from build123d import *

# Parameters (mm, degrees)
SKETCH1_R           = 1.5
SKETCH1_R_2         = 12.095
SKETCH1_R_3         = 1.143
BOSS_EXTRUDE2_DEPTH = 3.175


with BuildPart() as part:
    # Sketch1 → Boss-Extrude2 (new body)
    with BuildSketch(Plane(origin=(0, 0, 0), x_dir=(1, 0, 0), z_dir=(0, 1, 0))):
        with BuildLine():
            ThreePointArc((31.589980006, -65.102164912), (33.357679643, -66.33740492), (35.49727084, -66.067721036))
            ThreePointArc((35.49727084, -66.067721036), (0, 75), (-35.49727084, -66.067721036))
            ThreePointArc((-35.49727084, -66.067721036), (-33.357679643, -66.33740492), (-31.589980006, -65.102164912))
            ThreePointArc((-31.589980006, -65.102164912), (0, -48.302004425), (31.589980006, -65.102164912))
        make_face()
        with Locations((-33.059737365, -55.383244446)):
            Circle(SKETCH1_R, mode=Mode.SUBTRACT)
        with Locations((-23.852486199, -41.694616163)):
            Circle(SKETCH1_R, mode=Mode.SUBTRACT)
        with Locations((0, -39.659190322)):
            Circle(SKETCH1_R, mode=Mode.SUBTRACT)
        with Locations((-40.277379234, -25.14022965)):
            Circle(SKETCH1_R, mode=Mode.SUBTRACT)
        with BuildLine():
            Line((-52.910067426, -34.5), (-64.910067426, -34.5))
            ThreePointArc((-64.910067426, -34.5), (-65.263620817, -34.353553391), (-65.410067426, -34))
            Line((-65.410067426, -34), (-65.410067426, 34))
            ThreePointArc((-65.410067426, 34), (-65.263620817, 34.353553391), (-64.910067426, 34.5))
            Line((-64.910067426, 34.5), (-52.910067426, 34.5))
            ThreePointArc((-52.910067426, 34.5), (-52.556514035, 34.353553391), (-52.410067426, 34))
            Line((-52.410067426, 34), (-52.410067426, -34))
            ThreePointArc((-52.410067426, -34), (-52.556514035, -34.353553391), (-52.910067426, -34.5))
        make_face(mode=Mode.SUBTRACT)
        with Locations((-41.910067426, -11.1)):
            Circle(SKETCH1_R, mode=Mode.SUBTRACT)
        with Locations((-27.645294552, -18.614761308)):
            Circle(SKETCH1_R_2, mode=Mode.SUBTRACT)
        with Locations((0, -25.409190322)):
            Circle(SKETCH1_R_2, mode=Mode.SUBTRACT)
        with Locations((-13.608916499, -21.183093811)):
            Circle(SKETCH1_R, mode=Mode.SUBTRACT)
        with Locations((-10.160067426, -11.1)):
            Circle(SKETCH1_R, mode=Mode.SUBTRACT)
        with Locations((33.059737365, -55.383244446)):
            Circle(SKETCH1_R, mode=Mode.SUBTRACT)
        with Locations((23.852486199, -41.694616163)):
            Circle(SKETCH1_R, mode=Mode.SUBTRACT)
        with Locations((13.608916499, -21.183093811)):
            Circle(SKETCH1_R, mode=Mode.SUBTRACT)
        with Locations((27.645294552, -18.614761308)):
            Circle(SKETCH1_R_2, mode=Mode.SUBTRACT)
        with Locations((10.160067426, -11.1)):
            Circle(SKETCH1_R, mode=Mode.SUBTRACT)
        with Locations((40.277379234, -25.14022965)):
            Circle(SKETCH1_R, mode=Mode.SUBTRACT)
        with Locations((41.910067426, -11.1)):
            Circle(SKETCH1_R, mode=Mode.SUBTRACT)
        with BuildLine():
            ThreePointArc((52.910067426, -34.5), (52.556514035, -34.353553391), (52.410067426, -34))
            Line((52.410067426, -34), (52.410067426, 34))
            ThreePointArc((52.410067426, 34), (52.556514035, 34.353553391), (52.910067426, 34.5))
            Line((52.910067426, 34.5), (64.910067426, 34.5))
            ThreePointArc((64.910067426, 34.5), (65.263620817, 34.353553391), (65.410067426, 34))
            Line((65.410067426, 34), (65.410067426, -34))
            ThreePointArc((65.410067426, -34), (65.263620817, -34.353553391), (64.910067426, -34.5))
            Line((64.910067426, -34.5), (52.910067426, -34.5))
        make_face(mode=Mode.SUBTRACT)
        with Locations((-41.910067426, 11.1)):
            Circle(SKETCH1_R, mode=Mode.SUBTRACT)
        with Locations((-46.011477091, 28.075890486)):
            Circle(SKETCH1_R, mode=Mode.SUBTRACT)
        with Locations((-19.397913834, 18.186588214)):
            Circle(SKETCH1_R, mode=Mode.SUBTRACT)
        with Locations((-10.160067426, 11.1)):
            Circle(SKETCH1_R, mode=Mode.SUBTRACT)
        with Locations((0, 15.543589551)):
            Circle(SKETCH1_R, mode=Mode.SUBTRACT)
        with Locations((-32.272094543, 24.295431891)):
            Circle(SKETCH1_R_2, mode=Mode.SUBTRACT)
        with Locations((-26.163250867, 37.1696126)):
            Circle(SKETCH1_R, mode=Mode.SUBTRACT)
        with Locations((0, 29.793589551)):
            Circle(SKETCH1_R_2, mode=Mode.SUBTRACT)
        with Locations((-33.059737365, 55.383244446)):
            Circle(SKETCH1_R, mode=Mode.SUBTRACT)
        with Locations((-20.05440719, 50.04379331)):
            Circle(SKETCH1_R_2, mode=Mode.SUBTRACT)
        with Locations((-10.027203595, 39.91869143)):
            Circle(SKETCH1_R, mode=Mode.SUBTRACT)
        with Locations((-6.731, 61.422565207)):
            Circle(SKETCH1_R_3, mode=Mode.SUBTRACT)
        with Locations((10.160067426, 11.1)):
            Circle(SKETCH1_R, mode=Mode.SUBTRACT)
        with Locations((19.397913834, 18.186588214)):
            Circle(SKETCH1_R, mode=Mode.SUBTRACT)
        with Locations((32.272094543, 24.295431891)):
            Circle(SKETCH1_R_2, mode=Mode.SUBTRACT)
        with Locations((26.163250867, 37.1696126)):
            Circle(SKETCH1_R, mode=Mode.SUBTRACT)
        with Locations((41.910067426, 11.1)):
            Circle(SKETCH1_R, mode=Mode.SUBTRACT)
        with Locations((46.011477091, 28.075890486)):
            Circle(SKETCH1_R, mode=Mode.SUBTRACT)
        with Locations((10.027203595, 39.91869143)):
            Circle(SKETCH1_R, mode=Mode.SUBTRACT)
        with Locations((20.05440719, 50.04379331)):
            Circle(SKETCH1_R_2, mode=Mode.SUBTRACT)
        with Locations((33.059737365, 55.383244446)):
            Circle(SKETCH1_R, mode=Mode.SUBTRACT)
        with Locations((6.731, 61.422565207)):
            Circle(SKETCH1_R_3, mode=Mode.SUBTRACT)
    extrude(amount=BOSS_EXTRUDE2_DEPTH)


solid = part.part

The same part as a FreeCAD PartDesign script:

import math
import FreeCAD as App
import Part
import Sketcher
from FreeCAD import Vector
Q = App.Units.Quantity

doc = App.newDocument("Part")
body = doc.addObject("PartDesign::Body", "Body")

# Sketch on XZ plane
sketch1 = doc.addObject("Sketcher::SketchObject", "Sketch")
body.addObject(sketch1)
sketch1.AttachmentSupport = (doc.XZ_Plane, [""])
sketch1.MapMode = "FlatFace"
sketch1.addGeometry([
    Part.ArcOfCircle(Part.Circle(Vector(34.07738, 63.425012, 0), Vector(0, 0, 1), 3), math.radians(61.751478), math.radians(146.009813)),  # 0
    Part.ArcOfCircle(Part.Circle(Vector(0, 0, 0), Vector(0, 0, 1), 75), math.radians(118.248522), math.radians(421.751478)),  # 1
    Part.ArcOfCircle(Part.Circle(Vector(-34.07738, 63.425012, 0), Vector(0, 0, 1), 3), math.radians(33.990187), math.radians(118.248522)),  # 2
    Part.ArcOfCircle(Part.Circle(Vector(0, 86.402004, 0), Vector(0, 0, 1), 38.1), math.radians(-146.009813), math.radians(-33.990187)),  # 3
    Part.Circle(Vector(-33.059737, 55.383244, 0), Vector(0, 0, 1), 1.5),  # 4
    Part.Circle(Vector(-23.852486, 41.694616, 0), Vector(0, 0, 1), 1.5),  # 5
    Part.Circle(Vector(-40.277379, 25.14023, 0), Vector(0, 0, 1), 1.5),  # 6
    Part.ArcOfCircle(Part.Circle(Vector(-52.910067, 34, 0), Vector(0, 0, 1), 0.5), math.radians(0), math.radians(90)),  # 7
    Part.LineSegment(Vector(-52.910067, 34.5, 0), Vector(-64.910067, 34.5, 0)),  # 8
    Part.ArcOfCircle(Part.Circle(Vector(-64.910067, 34, 0), Vector(0, 0, 1), 0.5), math.radians(90), math.radians(180)),  # 9
    Part.LineSegment(Vector(-65.410067, 34, 0), Vector(-65.410067, -34, 0)),  # 10
    Part.ArcOfCircle(Part.Circle(Vector(-64.910067, -34, 0), Vector(0, 0, 1), 0.5), math.radians(180), math.radians(270)),  # 11
    Part.LineSegment(Vector(-64.910067, -34.5, 0), Vector(-52.910067, -34.5, 0)),  # 12
    Part.ArcOfCircle(Part.Circle(Vector(-52.910067, -34, 0), Vector(0, 0, 1), 0.5), math.radians(-90), math.radians(0)),  # 13
    Part.LineSegment(Vector(-52.410067, -34, 0), Vector(-52.410067, 34, 0)),  # 14
    Part.Circle(Vector(-41.910067, 11.1, 0), Vector(0, 0, 1), 1.5),  # 15
    Part.Circle(Vector(-27.645295, 18.614761, 0), Vector(0, 0, 1), 12.095),  # 16
    Part.Circle(Vector(-13.608916, 21.183094, 0), Vector(0, 0, 1), 1.5),  # 17
    Part.Circle(Vector(-10.160067, 11.1, 0), Vector(0, 0, 1), 1.5),  # 18
    Part.Circle(Vector(0, 39.65919, 0), Vector(0, 0, 1), 1.5),  # 19
    Part.Circle(Vector(23.852486, 41.694616, 0), Vector(0, 0, 1), 1.5),  # 20
    Part.Circle(Vector(33.059737, 55.383244, 0), Vector(0, 0, 1), 1.5),  # 21
    Part.Circle(Vector(0, 25.40919, 0), Vector(0, 0, 1), 12.095),  # 22
    Part.Circle(Vector(13.608916, 21.183094, 0), Vector(0, 0, 1), 1.5),  # 23
    Part.Circle(Vector(27.645295, 18.614761, 0), Vector(0, 0, 1), 12.095),  # 24
    Part.Circle(Vector(10.160067, 11.1, 0), Vector(0, 0, 1), 1.5),  # 25
    Part.Circle(Vector(40.277379, 25.14023, 0), Vector(0, 0, 1), 1.5),  # 26
    Part.Circle(Vector(41.910067, 11.1, 0), Vector(0, 0, 1), 1.5),  # 27
    Part.LineSegment(Vector(64.910067, 34.5, 0), Vector(52.910067, 34.5, 0)),  # 28
    Part.ArcOfCircle(Part.Circle(Vector(52.910067, 34, 0), Vector(0, 0, 1), 0.5), math.radians(90), math.radians(180)),  # 29
    Part.LineSegment(Vector(52.410067, 34, 0), Vector(52.410067, -34, 0)),  # 30
    Part.ArcOfCircle(Part.Circle(Vector(52.910067, -34, 0), Vector(0, 0, 1), 0.5), math.radians(180), math.radians(270)),  # 31
    Part.LineSegment(Vector(52.910067, -34.5, 0), Vector(64.910067, -34.5, 0)),  # 32
    Part.ArcOfCircle(Part.Circle(Vector(64.910067, -34, 0), Vector(0, 0, 1), 0.5), math.radians(-90), math.radians(0)),  # 33
    Part.LineSegment(Vector(65.410067, -34, 0), Vector(65.410067, 34, 0)),  # 34
    Part.ArcOfCircle(Part.Circle(Vector(64.910067, 34, 0), Vector(0, 0, 1), 0.5), math.radians(0), math.radians(90)),  # 35
    Part.Circle(Vector(-41.910067, -11.1, 0), Vector(0, 0, 1), 1.5),  # 36
    Part.Circle(Vector(-46.011477, -28.07589, 0), Vector(0, 0, 1), 1.5),  # 37
    Part.Circle(Vector(-10.160067, -11.1, 0), Vector(0, 0, 1), 1.5),  # 38
    Part.Circle(Vector(-32.272095, -24.295432, 0), Vector(0, 0, 1), 12.095),  # 39
    Part.Circle(Vector(-19.397914, -18.186588, 0), Vector(0, 0, 1), 1.5),  # 40
    Part.Circle(Vector(-33.059737, -55.383244, 0), Vector(0, 0, 1), 1.5),  # 41
    Part.Circle(Vector(-26.163251, -37.169613, 0), Vector(0, 0, 1), 1.5),  # 42
    Part.Circle(Vector(-10.027204, -39.918691, 0), Vector(0, 0, 1), 1.5),  # 43
    Part.Circle(Vector(-20.054407, -50.043793, 0), Vector(0, 0, 1), 12.095),  # 44
    Part.Circle(Vector(-6.731, -61.422565, 0), Vector(0, 0, 1), 1.143),  # 45
    Part.Circle(Vector(0, -15.54359, 0), Vector(0, 0, 1), 1.5),  # 46
    Part.Circle(Vector(10.160067, -11.1, 0), Vector(0, 0, 1), 1.5),  # 47
    Part.Circle(Vector(0, -29.79359, 0), Vector(0, 0, 1), 12.095),  # 48
    Part.Circle(Vector(19.397914, -18.186588, 0), Vector(0, 0, 1), 1.5),  # 49
    Part.Circle(Vector(32.272095, -24.295432, 0), Vector(0, 0, 1), 12.095),  # 50
    Part.Circle(Vector(41.910067, -11.1, 0), Vector(0, 0, 1), 1.5),  # 51
    Part.Circle(Vector(46.011477, -28.07589, 0), Vector(0, 0, 1), 1.5),  # 52
    Part.Circle(Vector(10.027204, -39.918691, 0), Vector(0, 0, 1), 1.5),  # 53
    Part.Circle(Vector(26.163251, -37.169613, 0), Vector(0, 0, 1), 1.5),  # 54
    Part.Circle(Vector(6.731, -61.422565, 0), Vector(0, 0, 1), 1.143),  # 55
    Part.Circle(Vector(20.054407, -50.043793, 0), Vector(0, 0, 1), 12.095),  # 56
    Part.Circle(Vector(33.059737, -55.383244, 0), Vector(0, 0, 1), 1.5),  # 57
], False)
sketch1.addConstraint([
    Sketcher.Constraint("Tangent", 0, 1, 1, 2),
    Sketcher.Constraint("Tangent", 1, 1, 2, 2),
    Sketcher.Constraint("Tangent", 2, 1, 3, 1),
    Sketcher.Constraint("Tangent", 3, 2, 0, 2),
    Sketcher.Constraint("Tangent", 7, 2, 8, 1),
    Sketcher.Constraint("Tangent", 8, 2, 9, 1),
    Sketcher.Constraint("Tangent", 9, 2, 10, 1),
    Sketcher.Constraint("Tangent", 10, 2, 11, 1),
    Sketcher.Constraint("Tangent", 11, 2, 12, 1),
    Sketcher.Constraint("Tangent", 12, 2, 13, 1),
    Sketcher.Constraint("Tangent", 13, 2, 14, 1),
    Sketcher.Constraint("Tangent", 14, 2, 7, 1),
    Sketcher.Constraint("Tangent", 28, 2, 29, 1),
    Sketcher.Constraint("Tangent", 29, 2, 30, 1),
    Sketcher.Constraint("Tangent", 30, 2, 31, 1),
    Sketcher.Constraint("Tangent", 31, 2, 32, 1),
    Sketcher.Constraint("Tangent", 32, 2, 33, 1),
    Sketcher.Constraint("Tangent", 33, 2, 34, 1),
    Sketcher.Constraint("Tangent", 34, 2, 35, 1),
    Sketcher.Constraint("Tangent", 35, 2, 28, 1),
    Sketcher.Constraint("Horizontal", 8),
    Sketcher.Constraint("Vertical", 10),
    Sketcher.Constraint("Horizontal", 12),
    Sketcher.Constraint("Vertical", 14),
    Sketcher.Constraint("Horizontal", 28),
    Sketcher.Constraint("Vertical", 30),
    Sketcher.Constraint("Horizontal", 32),
    Sketcher.Constraint("Vertical", 34),
    Sketcher.Constraint("Coincident", 1, 3, -1, 1),
    Sketcher.Constraint("Equal", 0, 2),
    Sketcher.Constraint("Equal", 4, 5),
    Sketcher.Constraint("Equal", 5, 6),
    Sketcher.Constraint("Equal", 7, 9),
    Sketcher.Constraint("Equal", 9, 11),
    Sketcher.Constraint("Equal", 11, 13),
    Sketcher.Constraint("Equal", 6, 15),
    Sketcher.Constraint("Equal", 15, 17),
    Sketcher.Constraint("Equal", 17, 18),
    Sketcher.Constraint("Equal", 18, 19),
    Sketcher.Constraint("Equal", 19, 20),
    Sketcher.Constraint("Equal", 20, 21),
    Sketcher.Constraint("Equal", 16, 22),
    Sketcher.Constraint("Equal", 21, 23),
    Sketcher.Constraint("Equal", 22, 24),
    Sketcher.Constraint("Equal", 23, 25),
    Sketcher.Constraint("Equal", 25, 26),
    Sketcher.Constraint("Equal", 26, 27),
    Sketcher.Constraint("Equal", 13, 29),
    Sketcher.Constraint("Equal", 29, 31),
    Sketcher.Constraint("Equal", 31, 33),
    Sketcher.Constraint("Equal", 33, 35),
    Sketcher.Constraint("Equal", 27, 36),
    Sketcher.Constraint("Equal", 36, 37),
    Sketcher.Constraint("Equal", 37, 38),
    Sketcher.Constraint("Equal", 24, 39),
    Sketcher.Constraint("Equal", 38, 40),
    Sketcher.Constraint("Equal", 40, 41),
    Sketcher.Constraint("Equal", 41, 42),
    Sketcher.Constraint("Equal", 42, 43),
    Sketcher.Constraint("Equal", 39, 44),
    Sketcher.Constraint("Equal", 43, 46),
    Sketcher.Constraint("Equal", 46, 47),
    Sketcher.Constraint("Equal", 44, 48),
    Sketcher.Constraint("Equal", 47, 49),
    Sketcher.Constraint("Equal", 48, 50),
    Sketcher.Constraint("Equal", 49, 51),
    Sketcher.Constraint("Equal", 51, 52),
    Sketcher.Constraint("Equal", 52, 53),
    Sketcher.Constraint("Equal", 53, 54),
    Sketcher.Constraint("Equal", 45, 55),
    Sketcher.Constraint("Equal", 50, 56),
    Sketcher.Constraint("Equal", 54, 57),
    Sketcher.Constraint("Symmetric", 13, 3, 29, 3, -1, 1),
    Sketcher.Constraint("Symmetric", 9, 3, 33, 3, -1, 1),
    Sketcher.Constraint("Symmetric", 27, 3, 36, 3, -1, 1),
    Sketcher.Constraint("Symmetric", 25, 3, 38, 3, -1, 1),
    Sketcher.Constraint("Symmetric", 21, 3, 41, 3, -1, 1),
    Sketcher.Constraint("Symmetric", 18, 3, 47, 3, -1, 1),
    Sketcher.Constraint("Symmetric", 15, 3, 51, 3, -1, 1),
    Sketcher.Constraint("Symmetric", 4, 3, 57, 3, -1, 1),
    Sketcher.Constraint("Symmetric", 5, 3, 20, 3, -2),
    Sketcher.Constraint("Symmetric", 4, 3, 21, 3, -2),
    Sketcher.Constraint("Symmetric", 17, 3, 23, 3, -2),
    Sketcher.Constraint("Symmetric", 16, 3, 24, 3, -2),
    Sketcher.Constraint("Symmetric", 18, 3, 25, 3, -2),
    Sketcher.Constraint("Symmetric", 6, 3, 26, 3, -2),
    Sketcher.Constraint("Symmetric", 15, 3, 27, 3, -2),
    Sketcher.Constraint("Symmetric", 40, 3, 49, 3, -2),
    Sketcher.Constraint("Symmetric", 39, 3, 50, 3, -2),
    Sketcher.Constraint("Symmetric", 37, 3, 52, 3, -2),
    Sketcher.Constraint("Symmetric", 43, 3, 53, 3, -2),
    Sketcher.Constraint("Symmetric", 42, 3, 54, 3, -2),
    Sketcher.Constraint("Symmetric", 45, 3, 55, 3, -2),
    Sketcher.Constraint("Symmetric", 44, 3, 56, 3, -2),
    Sketcher.Constraint("PointOnObject", 3, 3, -2),
    Sketcher.Constraint("PointOnObject", 19, 3, -2),
    Sketcher.Constraint("PointOnObject", 22, 3, -2),
    Sketcher.Constraint("PointOnObject", 46, 3, -2),
    Sketcher.Constraint("PointOnObject", 48, 3, -2),
    Sketcher.Constraint("Horizontal", 15, 3, 18, 3),
    Sketcher.Constraint("Horizontal", 9, 3, 29, 3),
    Sketcher.Constraint("Diameter", 4, Q("3 mm")),
    Sketcher.Constraint("Radius", 0, Q("3 mm")),
    Sketcher.Constraint("Radius", 1, Q("75 mm")),
    Sketcher.Constraint("Radius", 3, Q("38.1 mm")),
    Sketcher.Constraint("Radius", 7, Q("0.5 mm")),
    Sketcher.Constraint("Diameter", 16, Q("24.19 mm")),
    Sketcher.Constraint("DistanceX", 8, 2, 8, 1, Q("12 mm")),
    Sketcher.Constraint("DistanceY", 10, 2, 10, 1, Q("68 mm")),
    Sketcher.Constraint("Diameter", 45, Q("2.286 mm")),
    Sketcher.Constraint("DistanceY", -1, 1, 15, 3, Q("11.1 mm")),
    Sketcher.Constraint("DistanceX", 45, 3, -1, 1, Q("6.731 mm")),
    Sketcher.Constraint("DistanceX", -1, 1, 0, 3, Q("34.07738 mm")),
    Sketcher.Constraint("DistanceX", 6, 3, -1, 1, Q("40.277379 mm")),
    Sketcher.Constraint("DistanceY", -1, 1, 6, 3, Q("25.14023 mm")),
    Sketcher.Constraint("DistanceY", -1, 1, 16, 3, Q("18.614761 mm")),
    Sketcher.Constraint("DistanceY", -1, 1, 19, 3, Q("39.65919 mm")),
    Sketcher.Constraint("DistanceY", -1, 1, 22, 3, Q("25.40919 mm")),
    Sketcher.Constraint("DistanceY", 37, 3, -1, 1, Q("28.07589 mm")),
    Sketcher.Constraint("DistanceY", 39, 3, -1, 1, Q("24.295432 mm")),
    Sketcher.Constraint("DistanceY", 40, 3, -1, 1, Q("18.186588 mm")),
    Sketcher.Constraint("DistanceX", 42, 3, -1, 1, Q("26.163251 mm")),
    Sketcher.Constraint("DistanceY", 43, 3, -1, 1, Q("39.918691 mm")),
    Sketcher.Constraint("DistanceY", 46, 3, -1, 1, Q("15.54359 mm")),
    Sketcher.Constraint("DistanceY", 48, 3, -1, 1, Q("29.79359 mm")),
    Sketcher.Constraint("DistanceX", 4, 3, -1, 1, Q("33.059737 mm")),
    Sketcher.Constraint("DistanceY", -1, 1, 4, 3, Q("55.383244 mm")),
    Sketcher.Constraint("DistanceX", 5, 3, -1, 1, Q("23.852486 mm")),
    Sketcher.Constraint("DistanceY", -1, 1, 5, 3, Q("41.694616 mm")),
    Sketcher.Constraint("DistanceX", 7, 3, -1, 1, Q("52.910067 mm")),
    Sketcher.Constraint("DistanceX", 15, 3, -1, 1, Q("41.910067 mm")),
    Sketcher.Constraint("DistanceX", 16, 3, -1, 1, Q("27.645295 mm")),
    Sketcher.Constraint("DistanceX", 17, 3, -1, 1, Q("13.608916 mm")),
    Sketcher.Constraint("DistanceY", -1, 1, 17, 3, Q("21.183094 mm")),
    Sketcher.Constraint("DistanceX", 18, 3, -1, 1, Q("10.160067 mm")),
    Sketcher.Constraint("DistanceX", 37, 3, -1, 1, Q("46.011477 mm")),
    Sketcher.Constraint("DistanceX", 39, 3, -1, 1, Q("32.272095 mm")),
    Sketcher.Constraint("DistanceX", 40, 3, -1, 1, Q("19.397914 mm")),
    Sketcher.Constraint("DistanceY", 42, 3, -1, 1, Q("37.169613 mm")),
    Sketcher.Constraint("DistanceX", 43, 3, -1, 1, Q("10.027204 mm")),
    Sketcher.Constraint("DistanceX", 44, 3, -1, 1, Q("20.054407 mm")),
    Sketcher.Constraint("DistanceY", 44, 3, -1, 1, Q("50.043793 mm")),
    Sketcher.Constraint("DistanceY", 45, 3, -1, 1, Q("61.422565 mm")),
])
pad1 = doc.addObject("PartDesign::Pad", "Pad")
body.addObject(pad1)
pad1.Profile = sketch1
pad1.Length = 3.175
pad1.Reversed = True

doc.recompute()
